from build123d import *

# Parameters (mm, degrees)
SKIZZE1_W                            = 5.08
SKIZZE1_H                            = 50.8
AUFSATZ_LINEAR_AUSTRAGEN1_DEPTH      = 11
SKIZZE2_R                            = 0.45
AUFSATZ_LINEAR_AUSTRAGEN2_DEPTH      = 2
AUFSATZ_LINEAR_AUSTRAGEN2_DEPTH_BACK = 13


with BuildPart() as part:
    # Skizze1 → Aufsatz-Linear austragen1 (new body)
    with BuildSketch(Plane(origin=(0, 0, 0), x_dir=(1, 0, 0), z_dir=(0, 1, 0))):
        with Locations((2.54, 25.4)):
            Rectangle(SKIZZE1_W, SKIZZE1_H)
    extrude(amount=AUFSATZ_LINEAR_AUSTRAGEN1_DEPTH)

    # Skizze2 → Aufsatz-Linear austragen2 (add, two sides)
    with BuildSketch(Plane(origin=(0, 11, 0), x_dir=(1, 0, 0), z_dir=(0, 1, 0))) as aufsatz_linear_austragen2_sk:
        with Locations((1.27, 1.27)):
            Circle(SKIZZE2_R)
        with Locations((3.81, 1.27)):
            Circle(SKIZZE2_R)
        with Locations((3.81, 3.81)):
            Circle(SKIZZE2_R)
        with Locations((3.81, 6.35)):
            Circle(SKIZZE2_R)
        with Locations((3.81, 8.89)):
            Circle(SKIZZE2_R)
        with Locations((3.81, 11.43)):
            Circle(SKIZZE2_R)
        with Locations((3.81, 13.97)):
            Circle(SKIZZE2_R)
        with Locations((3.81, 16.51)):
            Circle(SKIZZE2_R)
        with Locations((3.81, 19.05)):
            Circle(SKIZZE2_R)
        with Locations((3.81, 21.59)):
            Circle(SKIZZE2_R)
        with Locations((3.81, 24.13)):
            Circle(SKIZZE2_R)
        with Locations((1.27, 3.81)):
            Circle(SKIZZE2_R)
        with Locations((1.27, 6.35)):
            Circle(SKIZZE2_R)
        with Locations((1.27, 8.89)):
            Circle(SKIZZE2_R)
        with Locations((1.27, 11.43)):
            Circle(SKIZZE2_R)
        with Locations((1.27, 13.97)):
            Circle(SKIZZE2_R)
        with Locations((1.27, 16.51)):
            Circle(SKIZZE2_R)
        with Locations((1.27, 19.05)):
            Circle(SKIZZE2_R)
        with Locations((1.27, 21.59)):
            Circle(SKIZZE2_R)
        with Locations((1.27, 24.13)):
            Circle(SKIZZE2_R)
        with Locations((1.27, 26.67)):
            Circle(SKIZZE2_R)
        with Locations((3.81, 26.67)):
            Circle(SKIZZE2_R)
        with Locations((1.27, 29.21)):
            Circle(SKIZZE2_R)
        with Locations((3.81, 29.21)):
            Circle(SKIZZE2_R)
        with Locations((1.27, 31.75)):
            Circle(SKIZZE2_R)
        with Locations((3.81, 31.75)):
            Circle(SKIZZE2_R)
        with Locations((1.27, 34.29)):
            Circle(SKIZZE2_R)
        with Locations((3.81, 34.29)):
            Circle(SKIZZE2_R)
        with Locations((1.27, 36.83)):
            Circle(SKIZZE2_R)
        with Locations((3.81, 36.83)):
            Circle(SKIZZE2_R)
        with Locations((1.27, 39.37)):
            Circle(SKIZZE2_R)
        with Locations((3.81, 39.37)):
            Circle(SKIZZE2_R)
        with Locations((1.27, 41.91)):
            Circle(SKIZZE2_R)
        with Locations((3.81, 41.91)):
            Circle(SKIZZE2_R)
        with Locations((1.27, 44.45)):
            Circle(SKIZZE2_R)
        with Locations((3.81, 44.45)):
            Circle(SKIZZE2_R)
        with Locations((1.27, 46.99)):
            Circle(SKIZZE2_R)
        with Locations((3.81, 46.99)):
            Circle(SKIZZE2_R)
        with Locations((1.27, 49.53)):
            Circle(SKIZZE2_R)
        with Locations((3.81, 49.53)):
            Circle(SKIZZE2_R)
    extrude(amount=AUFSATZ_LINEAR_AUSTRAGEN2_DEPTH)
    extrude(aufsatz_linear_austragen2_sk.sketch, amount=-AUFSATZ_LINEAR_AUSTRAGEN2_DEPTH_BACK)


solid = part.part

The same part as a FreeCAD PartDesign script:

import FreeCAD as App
import Part
import Sketcher


def add_polygon(sketch, points):
    """Adds a closed chain of lines whose ends are joined by coincident constraints."""
    first, n = sketch.GeometryCount, len(points)
    for a, b in zip(points, points[1:] + points[:1]):
        sketch.addGeometry(Part.LineSegment(App.Vector(*a, 0), App.Vector(*b, 0)), False)
    for i in range(n):
        sketch.addConstraint(Sketcher.Constraint("Coincident", first + i, 2, first + (i + 1) % n, 1))

doc = App.newDocument("Part")
body = doc.addObject("PartDesign::Body", "Body")

sketch1 = doc.addObject("Sketcher::SketchObject", "Sketch")
body.addObject(sketch1)
sketch1.AttachmentSupport = (doc.XZ_Plane, [""])
sketch1.MapMode = "FlatFace"
add_polygon(sketch1, [(0, -50.8), (0, 0), (5.08, 0), (5.08, -50.8)])
sketch1.addConstraint(Sketcher.Constraint("Vertical", 0))
sketch1.addConstraint(Sketcher.Constraint("Horizontal", 1))
sketch1.addConstraint(Sketcher.Constraint("Vertical", 2))
sketch1.addConstraint(Sketcher.Constraint("Horizontal", 3))
sketch1.addConstraint(Sketcher.Constraint("Coincident", 0, 2, -1, 1))
sketch1.addConstraint(Sketcher.Constraint("DistanceY", 0, 1, 0, 2, 50.8))
sketch1.addConstraint(Sketcher.Constraint("DistanceX", 1, 1, 1, 2, 5.08))
pad1 = doc.addObject("PartDesign::Pad", "Pad")
body.addObject(pad1)
pad1.Profile = sketch1
pad1.Length = 11
pad1.Reversed = True

sketch2 = doc.addObject("Sketcher::SketchObject", "Sketch001")
body.addObject(sketch2)
sketch2.AttachmentSupport = (doc.XZ_Plane, [""])
sketch2.MapMode = "FlatFace"
sketch2.AttachmentOffset = App.Placement(App.Vector(0, 0, -11), App.Rotation())
sketch2.addGeometry(Part.Circle(App.Vector(1.27, -1.27, 0), App.Vector(0, 0, 1), 0.45), False)
sketch2.addGeometry(Part.Circle(App.Vector(3.81, -1.27, 0), App.Vector(0, 0, 1), 0.45), False)
sketch2.addGeometry(Part.Circle(App.Vector(3.81, -3.81, 0), App.Vector(0, 0, 1), 0.45), False)
sketch2.addGeometry(Part.Circle(App.Vector(3.81, -6.35, 0), App.Vector(0, 0, 1), 0.45), False)
sketch2.addGeometry(Part.Circle(App.Vector(3.81, -8.89, 0), App.Vector(0, 0, 1), 0.45), False)
sketch2.addGeometry(Part.Circle(App.Vector(3.81, -11.43, 0), App.Vector(0, 0, 1), 0.45), False)
sketch2.addGeometry(Part.Circle(App.Vector(3.81, -13.97, 0), App.Vector(0, 0, 1), 0.45), False)
sketch2.addGeometry(Part.Circle(App.Vector(3.81, -16.51, 0), App.Vector(0, 0, 1), 0.45), False)
sketch2.addGeometry(Part.Circle(App.Vector(3.81, -19.05, 0), App.Vector(0, 0, 1), 0.45), False)
sketch2.addGeometry(Part.Circle(App.Vector(3.81, -21.59, 0), App.Vector(0, 0, 1), 0.45), False)
sketch2.addGeometry(Part.Circle(App.Vector(3.81, -24.13, 0), App.Vector(0, 0, 1), 0.45), False)
sketch2.addGeometry(Part.Circle(App.Vector(1.27, -3.81, 0), App.Vector(0, 0, 1), 0.45), False)
sketch2.addGeometry(Part.Circle(App.Vector(1.27, -6.35, 0), App.Vector(0, 0, 1), 0.45), False)
sketch2.addGeometry(Part.Circle(App.Vector(1.27, -8.89, 0), App.Vector(0, 0, 1), 0.45), False)
sketch2.addGeometry(Part.Circle(App.Vector(1.27, -11.43, 0), App.Vector(0, 0, 1), 0.45), False)
sketch2.addGeometry(Part.Circle(App.Vector(1.27, -13.97, 0), App.Vector(0, 0, 1), 0.45), False)
sketch2.addGeometry(Part.Circle(App.Vector(1.27, -16.51, 0), App.Vector(0, 0, 1), 0.45), False)
sketch2.addGeometry(Part.Circle(App.Vector(1.27, -19.05, 0), App.Vector(0, 0, 1), 0.45), False)
sketch2.addGeometry(Part.Circle(App.Vector(1.27, -21.59, 0), App.Vector(0, 0, 1), 0.45), False)
sketch2.addGeometry(Part.Circle(App.Vector(1.27, -24.13, 0), App.Vector(0, 0, 1), 0.45), False)
sketch2.addGeometry(Part.Circle(App.Vector(1.27, -26.67, 0), App.Vector(0, 0, 1), 0.45), False)
sketch2.addGeometry(Part.Circle(App.Vector(3.81, -26.67, 0), App.Vector(0, 0, 1), 0.45), False)
sketch2.addGeometry(Part.Circle(App.Vector(1.27, -29.21, 0), App.Vector(0, 0, 1), 0.45), False)
sketch2.addGeometry(Part.Circle(App.Vector(3.81, -29.21, 0), App.Vector(0, 0, 1), 0.45), False)
sketch2.addGeometry(Part.Circle(App.Vector(1.27, -31.75, 0), App.Vector(0, 0, 1), 0.45), False)
sketch2.addGeometry(Part.Circle(App.Vector(3.81, -31.75, 0), App.Vector(0, 0, 1), 0.45), False)
sketch2.addGeometry(Part.Circle(App.Vector(1.27, -34.29, 0), App.Vector(0, 0, 1), 0.45), False)
sketch2.addGeometry(Part.Circle(App.Vector(3.81, -34.29, 0), App.Vector(0, 0, 1), 0.45), False)
sketch2.addGeometry(Part.Circle(App.Vector(1.27, -36.83, 0), App.Vector(0, 0, 1), 0.45), False)
sketch2.addGeometry(Part.Circle(App.Vector(3.81, -36.83, 0), App.Vector(0, 0, 1), 0.45), False)
sketch2.addGeometry(Part.Circle(App.Vector(1.27, -39.37, 0), App.Vector(0, 0, 1), 0.45), False)
sketch2.addGeometry(Part.Circle(App.Vector(3.81, -39.37, 0), App.Vector(0, 0, 1), 0.45), False)
sketch2.addGeometry(Part.Circle(App.Vector(1.27, -41.91, 0), App.Vector(0, 0, 1), 0.45), False)
sketch2.addGeometry(Part.Circle(App.Vector(3.81, -41.91, 0), App.Vector(0, 0, 1), 0.45), False)
sketch2.addGeometry(Part.Circle(App.Vector(1.27, -44.45, 0), App.Vector(0, 0, 1), 0.45), False)
sketch2.addGeometry(Part.Circle(App.Vector(3.81, -44.45, 0), App.Vector(0, 0, 1), 0.45), False)
sketch2.addGeometry(Part.Circle(App.Vector(1.27, -46.99, 0), App.Vector(0, 0, 1), 0.45), False)
sketch2.addGeometry(Part.Circle(App.Vector(3.81, -46.99, 0), App.Vector(0, 0, 1), 0.45), False)
sketch2.addGeometry(Part.Circle(App.Vector(1.27, -49.53, 0), App.Vector(0, 0, 1), 0.45), False)
sketch2.addGeometry(Part.Circle(App.Vector(3.81, -49.53, 0), App.Vector(0, 0, 1), 0.45), False)
sketch2.addConstraint(Sketcher.Constraint("Equal", 0, 1))
sketch2.addConstraint(Sketcher.Constraint("Equal", 1, 2))
sketch2.addConstraint(Sketcher.Constraint("Equal", 2, 3))
sketch2.addConstraint(Sketcher.Constraint("Equal", 3, 4))
sketch2.addConstraint(Sketcher.Constraint("Equal", 4, 5))
sketch2.addConstraint(Sketcher.Constraint("Equal", 5, 6))
sketch2.addConstraint(Sketcher.Constraint("Equal", 6, 7))
sketch2.addConstraint(Sketcher.Constraint("Equal", 7, 8))
sketch2.addConstraint(Sketcher.Constraint("Equal", 8, 9))
sketch2.addConstraint(Sketcher.Constraint("Equal", 9, 10))
sketch2.addConstraint(Sketcher.Constraint("Equal", 10, 11))
sketch2.addConstraint(Sketcher.Constraint("Equal", 11, 12))
sketch2.addConstraint(Sketcher.Constraint("Equal", 12, 13))
sketch2.addConstraint(Sketcher.Constraint("Equal", 13, 14))
sketch2.addConstraint(Sketcher.Constraint("Equal", 14, 15))
sketch2.addConstraint(Sketcher.Constraint("Equal", 15, 16))
sketch2.addConstraint(Sketcher.Constraint("Equal", 16, 17))
sketch2.addConstraint(Sketcher.Constraint("Equal", 17, 18))
sketch2.addConstraint(Sketcher.Constraint("Equal", 18, 19))
sketch2.addConstraint(Sketcher.Constraint("Equal", 19, 20))
sketch2.addConstraint(Sketcher.Constraint("Equal", 20, 21))
sketch2.addConstraint(Sketcher.Constraint("Equal", 21, 22))
sketch2.addConstraint(Sketcher.Constraint("Equal", 22, 23))
sketch2.addConstraint(Sketcher.Constraint("Equal", 23, 24))
sketch2.addConstraint(Sketcher.Constraint("Equal", 24, 25))
sketch2.addConstraint(Sketcher.Constraint("Equal", 25, 26))
sketch2.addConstraint(Sketcher.Constraint("Equal", 26, 27))
sketch2.addConstraint(Sketcher.Constraint("Equal", 27, 28))
sketch2.addConstraint(Sketcher.Constraint("Equal", 28, 29))
sketch2.addConstraint(Sketcher.Constraint("Equal", 29, 30))
sketch2.addConstraint(Sketcher.Constraint("Equal", 30, 31))
sketch2.addConstraint(Sketcher.Constraint("Equal", 31, 32))
sketch2.addConstraint(Sketcher.Constraint("Equal", 32, 33))
sketch2.addConstraint(Sketcher.Constraint("Equal", 33, 34))
sketch2.addConstraint(Sketcher.Constraint("Equal", 34, 35))
sketch2.addConstraint(Sketcher.Constraint("Equal", 35, 36))
sketch2.addConstraint(Sketcher.Constraint("Equal", 36, 37))
sketch2.addConstraint(Sketcher.Constraint("Equal", 37, 38))
sketch2.addConstraint(Sketcher.Constraint("Equal", 38, 39))
sketch2.addConstraint(Sketcher.Constraint("Horizontal", 0, 3, 1, 3))
sketch2.addConstraint(Sketcher.Constraint("Horizontal", 2, 3, 11, 3))
sketch2.addConstraint(Sketcher.Constraint("Horizontal", 3, 3, 12, 3))
sketch2.addConstraint(Sketcher.Constraint("Horizontal", 4, 3, 13, 3))
sketch2.addConstraint(Sketcher.Constraint("Horizontal", 5, 3, 14, 3))
sketch2.addConstraint(Sketcher.Constraint("Horizontal", 6, 3, 15, 3))
sketch2.addConstraint(Sketcher.Constraint("Horizontal", 7, 3, 16, 3))
sketch2.addConstraint(Sketcher.Constraint("Horizontal", 8, 3, 17, 3))
sketch2.addConstraint(Sketcher.Constraint("Horizontal", 9, 3, 18, 3))
sketch2.addConstraint(Sketcher.Constraint("Horizontal", 10, 3, 19, 3))
sketch2.addConstraint(Sketcher.Constraint("Horizontal", 20, 3, 21, 3))
sketch2.addConstraint(Sketcher.Constraint("Horizontal", 22, 3, 23, 3))
sketch2.addConstraint(Sketcher.Constraint("Horizontal", 24, 3, 25, 3))
sketch2.addConstraint(Sketcher.Constraint("Horizontal", 26, 3, 27, 3))
sketch2.addConstraint(Sketcher.Constraint("Horizontal", 28, 3, 29, 3))
sketch2.addConstraint(Sketcher.Constraint("Horizontal", 30, 3, 31, 3))
sketch2.addConstraint(Sketcher.Constraint("Horizontal", 32, 3, 33, 3))
sketch2.addConstraint(Sketcher.Constraint("Horizontal", 34, 3, 35, 3))
sketch2.addConstraint(Sketcher.Constraint("Horizontal", 36, 3, 37, 3))
sketch2.addConstraint(Sketcher.Constraint("Horizontal", 38, 3, 39, 3))
sketch2.addConstraint(Sketcher.Constraint("Vertical", 1, 3, 2, 3))
sketch2.addConstraint(Sketcher.Constraint("Vertical", 2, 3, 3, 3))
sketch2.addConstraint(Sketcher.Constraint("Vertical", 3, 3, 4, 3))
sketch2.addConstraint(Sketcher.Constraint("Vertical", 4, 3, 5, 3))
sketch2.addConstraint(Sketcher.Constraint("Vertical", 5, 3, 6, 3))
sketch2.addConstraint(Sketcher.Constraint("Vertical", 6, 3, 7, 3))
sketch2.addConstraint(Sketcher.Constraint("Vertical", 7, 3, 8, 3))
sketch2.addConstraint(Sketcher.Constraint("Vertical", 8, 3, 9, 3))
sketch2.addConstraint(Sketcher.Constraint("Vertical", 9, 3, 10, 3))
sketch2.addConstraint(Sketcher.Constraint("Vertical", 0, 3, 11, 3))
sketch2.addConstraint(Sketcher.Constraint("Vertical", 11, 3, 12, 3))
sketch2.addConstraint(Sketcher.Constraint("Vertical", 12, 3, 13, 3))
sketch2.addConstraint(Sketcher.Constraint("Vertical", 13, 3, 14, 3))
sketch2.addConstraint(Sketcher.Constraint("Vertical", 14, 3, 15, 3))
sketch2.addConstraint(Sketcher.Constraint("Vertical", 15, 3, 16, 3))
sketch2.addConstraint(Sketcher.Constraint("Vertical", 16, 3, 17, 3))
sketch2.addConstraint(Sketcher.Constraint("Vertical", 17, 3, 18, 3))
sketch2.addConstraint(Sketcher.Constraint("Vertical", 18, 3, 19, 3))
sketch2.addConstraint(Sketcher.Constraint("Vertical", 19, 3, 20, 3))
sketch2.addConstraint(Sketcher.Constraint("Vertical", 10, 3, 21, 3))
sketch2.addConstraint(Sketcher.Constraint("Vertical", 20, 3, 22, 3))
sketch2.addConstraint(Sketcher.Constraint("Vertical", 21, 3, 23, 3))
sketch2.addConstraint(Sketcher.Constraint("Vertical", 22, 3, 24, 3))
sketch2.addConstraint(Sketcher.Constraint("Vertical", 23, 3, 25, 3))
sketch2.addConstraint(Sketcher.Constraint("Vertical", 24, 3, 26, 3))
sketch2.addConstraint(Sketcher.Constraint("Vertical", 25, 3, 27, 3))
sketch2.addConstraint(Sketcher.Constraint("Vertical", 26, 3, 28, 3))
sketch2.addConstraint(Sketcher.Constraint("Vertical", 27, 3, 29, 3))
sketch2.addConstraint(Sketcher.Constraint("Vertical", 28, 3, 30, 3))
sketch2.addConstraint(Sketcher.Constraint("Vertical", 29, 3, 31, 3))
sketch2.addConstraint(Sketcher.Constraint("Vertical", 30, 3, 32, 3))
sketch2.addConstraint(Sketcher.Constraint("Vertical", 31, 3, 33, 3))
sketch2.addConstraint(Sketcher.Constraint("Vertical", 32, 3, 34, 3))
sketch2.addConstraint(Sketcher.Constraint("Vertical", 33, 3, 35, 3))
sketch2.addConstraint(Sketcher.Constraint("Vertical", 34, 3, 36, 3))
sketch2.addConstraint(Sketcher.Constraint("Vertical", 35, 3, 37, 3))
sketch2.addConstraint(Sketcher.Constraint("Vertical", 36, 3, 38, 3))
sketch2.addConstraint(Sketcher.Constraint("Vertical", 37, 3, 39, 3))
sketch2.addConstraint(Sketcher.Constraint("Diameter", 0, 0.9))
sketch2.addConstraint(Sketcher.Constraint("DistanceY", 6, 3, 1, 3, 12.7))
sketch2.addConstraint(Sketcher.Constraint("DistanceY", 7, 3, 2, 3, 12.7))
sketch2.addConstraint(Sketcher.Constraint("DistanceY", 8, 3, 3, 3, 12.7))
sketch2.addConstraint(Sketcher.Constraint("DistanceY", 9, 3, 4, 3, 12.7))
sketch2.addConstraint(Sketcher.Constraint("DistanceY", 10, 3, 5, 3, 12.7))
sketch2.addConstraint(Sketcher.Constraint("DistanceX", -1, 1, 0, 3, 1.27))
sketch2.addConstraint(Sketcher.Constraint("DistanceY", 0, 3, -1, 1, 1.27))
sketch2.addConstraint(Sketcher.Constraint("DistanceX", -1, 1, 1, 3, 3.81))
sketch2.addConstraint(Sketcher.Constraint("DistanceY", 2, 3, -1, 1, 3.81))
sketch2.addConstraint(Sketcher.Constraint("DistanceY", 3, 3, -1, 1, 6.35))
sketch2.addConstraint(Sketcher.Constraint("DistanceY", 4, 3, -1, 1, 8.89))
sketch2.addConstraint(Sketcher.Constraint("DistanceY", 5, 3, -1, 1, 11.43))
sketch2.addConstraint(Sketcher.Constraint("DistanceY", 20, 3, -1, 1, 26.67))
sketch2.addConstraint(Sketcher.Constraint("DistanceY", 22, 3, -1, 1, 29.21))
sketch2.addConstraint(Sketcher.Constraint("DistanceY", 24, 3, -1, 1, 31.75))
sketch2.addConstraint(Sketcher.Constraint("DistanceY", 26, 3, -1, 1, 34.29))
sketch2.addConstraint(Sketcher.Constraint("DistanceY", 28, 3, -1, 1, 36.83))
sketch2.addConstraint(Sketcher.Constraint("DistanceY", 30, 3, -1, 1, 39.37))
sketch2.addConstraint(Sketcher.Constraint("DistanceY", 32, 3, -1, 1, 41.91))
sketch2.addConstraint(Sketcher.Constraint("DistanceY", 34, 3, -1, 1, 44.45))
sketch2.addConstraint(Sketcher.Constraint("DistanceY", 36, 3, -1, 1, 46.99))
sketch2.addConstraint(Sketcher.Constraint("DistanceY", 38, 3, -1, 1, 49.53))
pad2 = doc.addObject("PartDesign::Pad", "Pad001")
body.addObject(pad2)
pad2.Profile = sketch2
pad2.Type = "TwoLengths"
pad2.Length = 2
pad2.Length2 = 13
pad2.Reversed = True

doc.recompute()
